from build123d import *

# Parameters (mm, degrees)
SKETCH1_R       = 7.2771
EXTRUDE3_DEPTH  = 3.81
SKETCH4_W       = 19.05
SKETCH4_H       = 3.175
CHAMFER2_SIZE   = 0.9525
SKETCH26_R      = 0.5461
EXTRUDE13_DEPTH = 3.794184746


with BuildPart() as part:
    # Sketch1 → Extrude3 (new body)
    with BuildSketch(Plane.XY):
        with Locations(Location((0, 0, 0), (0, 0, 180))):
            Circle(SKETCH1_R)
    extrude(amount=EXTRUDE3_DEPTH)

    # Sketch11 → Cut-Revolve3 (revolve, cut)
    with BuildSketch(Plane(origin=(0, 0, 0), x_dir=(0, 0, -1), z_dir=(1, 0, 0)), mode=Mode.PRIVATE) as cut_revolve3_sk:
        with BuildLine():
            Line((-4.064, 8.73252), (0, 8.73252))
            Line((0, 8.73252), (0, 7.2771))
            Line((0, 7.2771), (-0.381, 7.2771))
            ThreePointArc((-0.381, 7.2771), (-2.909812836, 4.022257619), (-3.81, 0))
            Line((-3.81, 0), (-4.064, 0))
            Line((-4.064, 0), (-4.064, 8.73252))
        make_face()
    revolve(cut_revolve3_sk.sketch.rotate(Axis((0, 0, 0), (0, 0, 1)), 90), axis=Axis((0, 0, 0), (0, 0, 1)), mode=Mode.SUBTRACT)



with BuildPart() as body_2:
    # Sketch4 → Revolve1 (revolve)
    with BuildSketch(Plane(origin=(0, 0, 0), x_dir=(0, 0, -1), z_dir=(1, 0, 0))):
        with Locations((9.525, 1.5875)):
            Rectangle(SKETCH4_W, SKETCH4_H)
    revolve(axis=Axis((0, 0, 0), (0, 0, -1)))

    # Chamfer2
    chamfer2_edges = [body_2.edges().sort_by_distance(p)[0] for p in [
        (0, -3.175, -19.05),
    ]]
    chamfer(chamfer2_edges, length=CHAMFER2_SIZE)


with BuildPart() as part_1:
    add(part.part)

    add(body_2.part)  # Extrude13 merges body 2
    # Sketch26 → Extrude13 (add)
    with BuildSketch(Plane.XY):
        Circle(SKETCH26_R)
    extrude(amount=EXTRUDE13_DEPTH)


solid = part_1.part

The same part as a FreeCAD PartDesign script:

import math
import FreeCAD as App
import Part
import Sketcher
from FreeCAD import Vector
Q = App.Units.Quantity


def edges_at(feature, points):
    """Names of the edges that pass closest to the given points."""
    edges = feature.Shape.Edges
    near = lambda p: min(range(len(edges)), key=lambda i: edges[i].distToShape(Part.Vertex(*p))[0])
    return sorted({f"Edge{near(p) + 1}" for p in points})


def add_polygon(sketch, points):
    """Adds a closed chain of lines whose ends are joined by coincident constraints."""
    first, n = sketch.GeometryCount, len(points)
    for a, b in zip(points, points[1:] + points[:1]):
        sketch.addGeometry(Part.LineSegment(App.Vector(*a, 0), App.Vector(*b, 0)), False)
    for i in range(n):
        sketch.addConstraint(Sketcher.Constraint("Coincident", first + i, 2, first + (i + 1) % n, 1))

doc = App.newDocument("Part")
body = doc.addObject("PartDesign::Body", "Body")

sketch1 = body.newObject("Sketcher::SketchObject", "Sketch")
sketch1.AttachmentSupport = (doc.getObject("XY_Plane"), [""])
sketch1.MapMode = "FlatFace"
sketch1.addGeometry(Part.Circle(Vector(0, 0, 0), Vector(0, 0, 1), 7), False)
sketch1.addConstraint([
    Sketcher.Constraint("Coincident", 0, 3, -1, 1),
    Sketcher.Constraint("Diameter", 0, Q("0.573 in")),
])
pad1 = body.newObject("PartDesign::Pad", "Pad")
pad1.Profile = sketch1
pad1.Length = Q("0.15 in")

sketch2 = body.newObject("Sketcher::SketchObject", "Sketch001")
sketch2.AttachmentSupport = (doc.getObject("YZ_Plane"), [""])
sketch2.MapMode = "FlatFace"
sketch2.addGeometry([
    Part.LineSegment(Vector(8.73, 0, 0), Vector(8.73, 4.06, 0)),
    Part.LineSegment(Vector(8.73, 4.06, 0), Vector(0, 4.06, 0)),
    Part.LineSegment(Vector(0, 4.06, 0), Vector(0, 3.81, 0)),
    Part.ArcOfCircle(Part.Circle(Vector(0, -5.63, 0), Vector(0, 0, 1), 9.44), math.radians(40), math.radians(90)),
    Part.LineSegment(Vector(7.28, 0.38, 0), Vector(7.28, 0, 0)),
    Part.LineSegment(Vector(7.28, 0, 0), Vector(8.73, 0, 0)),
], False)
sketch2.addConstraint([
    Sketcher.Constraint("Coincident", 0, 2, 1, 1),
    Sketcher.Constraint("Coincident", 1, 2, 2, 1),
    Sketcher.Constraint("Coincident", 2, 2, 3, 2),
    Sketcher.Constraint("Coincident", 3, 1, 4, 1),
    Sketcher.Constraint("Coincident", 4, 2, 5, 1),
    Sketcher.Constraint("Coincident", 5, 2, 0, 1),
    Sketcher.Constraint("Vertical", 0),
    Sketcher.Constraint("Horizontal", 1),
    Sketcher.Constraint("Vertical", 2),
    Sketcher.Constraint("Vertical", 4),
    Sketcher.Constraint("Horizontal", 5),
    Sketcher.Constraint("PointOnObject", 3, 3, -2),
    Sketcher.Constraint("PointOnObject", 1, 2, -2),
    Sketcher.Constraint("PointOnObject", 4, 2, -1),
    Sketcher.Constraint("DistanceY", 0, 1, 0, 2, Q("0.16 in")),
    Sketcher.Constraint("DistanceY", 2, 2, 2, 1, Q("0.01 in")),
    Sketcher.Constraint("DistanceY", 4, 2, 4, 1, Q("0.015 in")),
    Sketcher.Constraint("DistanceX", 1, 2, 1, 1, Q("0.3438 in")),
    Sketcher.Constraint("DistanceX", 5, 1, 5, 2, Q("0.0573 in")),
])
groove = body.newObject("PartDesign::Groove", "Groove")
groove.Profile = sketch2
groove.ReferenceAxis = (sketch2, ["V_Axis"])
groove.Angle = 360
body2 = doc.addObject("PartDesign::Body", "Body001")

sketch3 = body2.newObject("Sketcher::SketchObject", "Sketch002")
sketch3.AttachmentSupport = (doc.getObject("YZ_Plane001"), [""])
sketch3.MapMode = "FlatFace"
add_polygon(sketch3, [(3.2, 0), (0, 0), (0, -19.1), (3.2, -19.1)])
sketch3.addConstraint([
    Sketcher.Constraint("Horizontal", 0),
    Sketcher.Constraint("Vertical", 1),
    Sketcher.Constraint("Horizontal", 2),
    Sketcher.Constraint("Vertical", 3),
    Sketcher.Constraint("Coincident", 0, 2, -1, 1),
    Sketcher.Constraint("DistanceY", 1, 2, 1, 1, Q("0.75 in")),
    Sketcher.Constraint("DistanceX", 0, 2, 0, 1, Q("0.125 in")),
])
revolution = body2.newObject("PartDesign::Revolution", "Revolution")
revolution.Profile = sketch3
revolution.ReferenceAxis = (sketch3, ["V_Axis"])
revolution.Angle = 360
doc.recompute()

chamfer = body2.newObject("PartDesign::Chamfer", "Chamfer")
chamfer.Base = (revolution, edges_at(revolution, [(0, -3.175, -19.05)]))
chamfer.Size = Q("0.0375 in")
doc.recompute()

boolean = body.newObject("PartDesign::Boolean", "Boolean")
boolean.Type = "Fuse"
boolean.addObjects([body2])

sketch4 = body.newObject("Sketcher::SketchObject", "Sketch003")
sketch4.AttachmentSupport = (doc.getObject("XY_Plane"), [""])
sketch4.MapMode = "FlatFace"
sketch4.addGeometry(Part.Circle(Vector(0, 0, 0), Vector(0, 0, 1), 0.5), False)
sketch4.addConstraint([
    Sketcher.Constraint("Coincident", 0, 3, -1, 1),
    Sketcher.Constraint("Diameter", 0, Q("0.043 in")),
])
pad2 = body.newObject("PartDesign::Pad", "Pad001")
pad2.Profile = sketch4
pad2.Length = 3.794185

doc.recompute()
